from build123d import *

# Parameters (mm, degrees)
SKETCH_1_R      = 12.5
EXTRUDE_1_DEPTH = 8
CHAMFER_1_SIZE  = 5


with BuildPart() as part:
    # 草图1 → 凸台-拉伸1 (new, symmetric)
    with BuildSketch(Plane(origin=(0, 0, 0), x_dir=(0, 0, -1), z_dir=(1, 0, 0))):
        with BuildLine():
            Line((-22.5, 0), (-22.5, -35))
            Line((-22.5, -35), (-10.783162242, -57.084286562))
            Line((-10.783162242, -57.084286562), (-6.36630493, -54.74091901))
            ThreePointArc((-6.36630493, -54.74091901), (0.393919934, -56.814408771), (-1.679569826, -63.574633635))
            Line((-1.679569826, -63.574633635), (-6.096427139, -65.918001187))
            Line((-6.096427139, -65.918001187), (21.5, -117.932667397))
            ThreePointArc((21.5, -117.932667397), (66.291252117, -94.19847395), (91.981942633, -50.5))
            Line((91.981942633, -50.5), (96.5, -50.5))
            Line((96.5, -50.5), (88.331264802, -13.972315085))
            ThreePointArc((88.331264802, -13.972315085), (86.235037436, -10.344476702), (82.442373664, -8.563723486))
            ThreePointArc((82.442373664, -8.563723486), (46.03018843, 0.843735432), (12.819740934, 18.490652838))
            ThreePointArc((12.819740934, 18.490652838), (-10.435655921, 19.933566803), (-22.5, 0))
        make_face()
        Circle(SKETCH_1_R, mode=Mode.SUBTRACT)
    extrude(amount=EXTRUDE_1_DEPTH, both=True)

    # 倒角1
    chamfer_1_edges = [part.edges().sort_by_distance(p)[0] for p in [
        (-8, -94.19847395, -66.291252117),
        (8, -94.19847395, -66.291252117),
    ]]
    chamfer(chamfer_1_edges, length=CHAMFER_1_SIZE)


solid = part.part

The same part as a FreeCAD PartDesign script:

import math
import FreeCAD as App
import Part
import Sketcher
Q = App.Units.Quantity


def edges_at(feature, points):
    """Names of the edges that pass closest to the given points."""
    edges = feature.Shape.Edges
    near = lambda p: min(range(len(edges)), key=lambda i: edges[i].distToShape(Part.Vertex(*p))[0])
    return sorted({f"Edge{near(p) + 1}" for p in points})

doc = App.newDocument("Part")
body = doc.addObject("PartDesign::Body", "Body")

sketch1 = body.newObject("Sketcher::SketchObject", "Sketch")
sketch1.AttachmentSupport = (doc.getObject("YZ_Plane"), [""])
sketch1.MapMode = "FlatFace"
sketch1.addGeometry([
    Part.LineSegment(App.Vector(0, 22.5, 0), App.Vector(-35, 22.5, 0)),
    Part.LineSegment(App.Vector(-35, 22.5, 0), App.Vector(-57.1, 10.8, 0)),
    Part.LineSegment(App.Vector(-57.1, 10.8, 0), App.Vector(-54.7, 6.4, 0)),
    Part.ArcOfCircle(Part.Circle(App.Vector(-59.2, 4, 0), App.Vector(0, 0, 1), 5), math.radians(-152), math.radians(28)),
    Part.LineSegment(App.Vector(-63.6, 1.7, 0), App.Vector(-65.9, 6.1, 0)),
    Part.LineSegment(App.Vector(-65.9, 6.1, 0), App.Vector(-117.9, -21.5, 0)),
    Part.ArcOfCircle(Part.Circle(App.Vector(-27, -2, 0), App.Vector(0, 0, 1), 93), math.radians(-168), math.radians(-105)),
    Part.LineSegment(App.Vector(-50.5, -92, 0), App.Vector(-50.5, -96.5, 0)),
    Part.LineSegment(App.Vector(-50.5, -96.5, 0), App.Vector(-14, -88.3, 0)),
    Part.ArcOfCircle(Part.Circle(App.Vector(-15.5, -81.5, 0), App.Vector(0, 0, 1), 7), math.radians(-77), math.radians(-8)),
    Part.ArcOfCircle(Part.Circle(App.Vector(150, -104, 0), App.Vector(0, 0, 1), 160), math.radians(145), math.radians(172)),
    Part.ArcOfCircle(Part.Circle(App.Vector(0, 0, 0), App.Vector(0, 0, 1), 22.5), math.radians(-35), math.radians(90)),
    Part.Circle(App.Vector(0, 0, 0), App.Vector(0, 0, 1), 12.5),
], False)
sketch1.addConstraint([
    Sketcher.Constraint("Coincident", 0, 2, 1, 1),
    Sketcher.Constraint("Coincident", 1, 2, 2, 1),
    Sketcher.Constraint("Tangent", 2, 2, 3, 2),
    Sketcher.Constraint("Tangent", 3, 1, 4, 1),
    Sketcher.Constraint("Coincident", 4, 2, 5, 1),
    Sketcher.Constraint("Coincident", 5, 2, 6, 1),
    Sketcher.Constraint("Coincident", 6, 2, 7, 1),
    Sketcher.Constraint("Coincident", 7, 2, 8, 1),
    Sketcher.Constraint("Tangent", 8, 2, 9, 1),
    Sketcher.Constraint("Tangent", 9, 2, 10, 2),
    Sketcher.Constraint("Tangent", 10, 1, 11, 1),
    Sketcher.Constraint("Tangent", 11, 2, 0, 1),
    Sketcher.Constraint("Horizontal", 0),
    Sketcher.Constraint("Vertical", 7),
    Sketcher.Constraint("Coincident", 11, 3, -1, 1),
    Sketcher.Constraint("Coincident", 12, 3, -1, 1),
    Sketcher.Constraint("Perpendicular", 1, 2),
    Sketcher.Constraint("Parallel", 2, 4),
    Sketcher.Constraint("Perpendicular", 4, 5),
    Sketcher.Constraint("Equal", 2, 4),
    Sketcher.Constraint("Diameter", 12, Q("25 mm")),
    Sketcher.Constraint("Radius", 3, Q("5 mm")),
    Sketcher.Constraint("Radius", 6, Q("93 mm")),
    Sketcher.Constraint("Radius", 9, Q("7 mm")),
    Sketcher.Constraint("Radius", 10, Q("160 mm")),
    Sketcher.Constraint("Radius", 11, Q("22.5 mm")),
    Sketcher.Constraint("DistanceX", 0, 2, 0, 1, Q("35 mm")),
    Sketcher.Constraint("Distance", 1, Q("25 mm")),
    Sketcher.Constraint("Distance", 2, Q("5 mm")),
    Sketcher.Constraint("DistanceX", 6, 3, -1, 1, Q("27 mm")),
    Sketcher.Constraint("DistanceY", 6, 3, -1, 1, Q("2 mm")),
    Sketcher.Constraint("DistanceY", 9, 3, 0, 2, Q("104 mm")),
    Sketcher.Constraint("DistanceX", 6, 2, 9, 3, Q("35 mm")),
    Sketcher.Constraint("DistanceY", 7, 2, 9, 3, Q("15 mm")),
    Sketcher.Constraint("DistanceY", 7, 2, 5, 2, Q("75 mm")),
    Sketcher.Constraint("DistanceX", 9, 3, -1, 1, Q("15.5 mm")),
])
pad1 = body.newObject("PartDesign::Pad", "Pad")
pad1.Profile = sketch1
pad1.Length = 16
pad1.Midplane = True
doc.recompute()

chamfer = body.newObject("PartDesign::Chamfer", "Chamfer")
chamfer.Base = (pad1, edges_at(pad1, [(-8, -94.198, -66.291), (8, -94.198, -66.291)]))
chamfer.Size = 5

doc.recompute()
